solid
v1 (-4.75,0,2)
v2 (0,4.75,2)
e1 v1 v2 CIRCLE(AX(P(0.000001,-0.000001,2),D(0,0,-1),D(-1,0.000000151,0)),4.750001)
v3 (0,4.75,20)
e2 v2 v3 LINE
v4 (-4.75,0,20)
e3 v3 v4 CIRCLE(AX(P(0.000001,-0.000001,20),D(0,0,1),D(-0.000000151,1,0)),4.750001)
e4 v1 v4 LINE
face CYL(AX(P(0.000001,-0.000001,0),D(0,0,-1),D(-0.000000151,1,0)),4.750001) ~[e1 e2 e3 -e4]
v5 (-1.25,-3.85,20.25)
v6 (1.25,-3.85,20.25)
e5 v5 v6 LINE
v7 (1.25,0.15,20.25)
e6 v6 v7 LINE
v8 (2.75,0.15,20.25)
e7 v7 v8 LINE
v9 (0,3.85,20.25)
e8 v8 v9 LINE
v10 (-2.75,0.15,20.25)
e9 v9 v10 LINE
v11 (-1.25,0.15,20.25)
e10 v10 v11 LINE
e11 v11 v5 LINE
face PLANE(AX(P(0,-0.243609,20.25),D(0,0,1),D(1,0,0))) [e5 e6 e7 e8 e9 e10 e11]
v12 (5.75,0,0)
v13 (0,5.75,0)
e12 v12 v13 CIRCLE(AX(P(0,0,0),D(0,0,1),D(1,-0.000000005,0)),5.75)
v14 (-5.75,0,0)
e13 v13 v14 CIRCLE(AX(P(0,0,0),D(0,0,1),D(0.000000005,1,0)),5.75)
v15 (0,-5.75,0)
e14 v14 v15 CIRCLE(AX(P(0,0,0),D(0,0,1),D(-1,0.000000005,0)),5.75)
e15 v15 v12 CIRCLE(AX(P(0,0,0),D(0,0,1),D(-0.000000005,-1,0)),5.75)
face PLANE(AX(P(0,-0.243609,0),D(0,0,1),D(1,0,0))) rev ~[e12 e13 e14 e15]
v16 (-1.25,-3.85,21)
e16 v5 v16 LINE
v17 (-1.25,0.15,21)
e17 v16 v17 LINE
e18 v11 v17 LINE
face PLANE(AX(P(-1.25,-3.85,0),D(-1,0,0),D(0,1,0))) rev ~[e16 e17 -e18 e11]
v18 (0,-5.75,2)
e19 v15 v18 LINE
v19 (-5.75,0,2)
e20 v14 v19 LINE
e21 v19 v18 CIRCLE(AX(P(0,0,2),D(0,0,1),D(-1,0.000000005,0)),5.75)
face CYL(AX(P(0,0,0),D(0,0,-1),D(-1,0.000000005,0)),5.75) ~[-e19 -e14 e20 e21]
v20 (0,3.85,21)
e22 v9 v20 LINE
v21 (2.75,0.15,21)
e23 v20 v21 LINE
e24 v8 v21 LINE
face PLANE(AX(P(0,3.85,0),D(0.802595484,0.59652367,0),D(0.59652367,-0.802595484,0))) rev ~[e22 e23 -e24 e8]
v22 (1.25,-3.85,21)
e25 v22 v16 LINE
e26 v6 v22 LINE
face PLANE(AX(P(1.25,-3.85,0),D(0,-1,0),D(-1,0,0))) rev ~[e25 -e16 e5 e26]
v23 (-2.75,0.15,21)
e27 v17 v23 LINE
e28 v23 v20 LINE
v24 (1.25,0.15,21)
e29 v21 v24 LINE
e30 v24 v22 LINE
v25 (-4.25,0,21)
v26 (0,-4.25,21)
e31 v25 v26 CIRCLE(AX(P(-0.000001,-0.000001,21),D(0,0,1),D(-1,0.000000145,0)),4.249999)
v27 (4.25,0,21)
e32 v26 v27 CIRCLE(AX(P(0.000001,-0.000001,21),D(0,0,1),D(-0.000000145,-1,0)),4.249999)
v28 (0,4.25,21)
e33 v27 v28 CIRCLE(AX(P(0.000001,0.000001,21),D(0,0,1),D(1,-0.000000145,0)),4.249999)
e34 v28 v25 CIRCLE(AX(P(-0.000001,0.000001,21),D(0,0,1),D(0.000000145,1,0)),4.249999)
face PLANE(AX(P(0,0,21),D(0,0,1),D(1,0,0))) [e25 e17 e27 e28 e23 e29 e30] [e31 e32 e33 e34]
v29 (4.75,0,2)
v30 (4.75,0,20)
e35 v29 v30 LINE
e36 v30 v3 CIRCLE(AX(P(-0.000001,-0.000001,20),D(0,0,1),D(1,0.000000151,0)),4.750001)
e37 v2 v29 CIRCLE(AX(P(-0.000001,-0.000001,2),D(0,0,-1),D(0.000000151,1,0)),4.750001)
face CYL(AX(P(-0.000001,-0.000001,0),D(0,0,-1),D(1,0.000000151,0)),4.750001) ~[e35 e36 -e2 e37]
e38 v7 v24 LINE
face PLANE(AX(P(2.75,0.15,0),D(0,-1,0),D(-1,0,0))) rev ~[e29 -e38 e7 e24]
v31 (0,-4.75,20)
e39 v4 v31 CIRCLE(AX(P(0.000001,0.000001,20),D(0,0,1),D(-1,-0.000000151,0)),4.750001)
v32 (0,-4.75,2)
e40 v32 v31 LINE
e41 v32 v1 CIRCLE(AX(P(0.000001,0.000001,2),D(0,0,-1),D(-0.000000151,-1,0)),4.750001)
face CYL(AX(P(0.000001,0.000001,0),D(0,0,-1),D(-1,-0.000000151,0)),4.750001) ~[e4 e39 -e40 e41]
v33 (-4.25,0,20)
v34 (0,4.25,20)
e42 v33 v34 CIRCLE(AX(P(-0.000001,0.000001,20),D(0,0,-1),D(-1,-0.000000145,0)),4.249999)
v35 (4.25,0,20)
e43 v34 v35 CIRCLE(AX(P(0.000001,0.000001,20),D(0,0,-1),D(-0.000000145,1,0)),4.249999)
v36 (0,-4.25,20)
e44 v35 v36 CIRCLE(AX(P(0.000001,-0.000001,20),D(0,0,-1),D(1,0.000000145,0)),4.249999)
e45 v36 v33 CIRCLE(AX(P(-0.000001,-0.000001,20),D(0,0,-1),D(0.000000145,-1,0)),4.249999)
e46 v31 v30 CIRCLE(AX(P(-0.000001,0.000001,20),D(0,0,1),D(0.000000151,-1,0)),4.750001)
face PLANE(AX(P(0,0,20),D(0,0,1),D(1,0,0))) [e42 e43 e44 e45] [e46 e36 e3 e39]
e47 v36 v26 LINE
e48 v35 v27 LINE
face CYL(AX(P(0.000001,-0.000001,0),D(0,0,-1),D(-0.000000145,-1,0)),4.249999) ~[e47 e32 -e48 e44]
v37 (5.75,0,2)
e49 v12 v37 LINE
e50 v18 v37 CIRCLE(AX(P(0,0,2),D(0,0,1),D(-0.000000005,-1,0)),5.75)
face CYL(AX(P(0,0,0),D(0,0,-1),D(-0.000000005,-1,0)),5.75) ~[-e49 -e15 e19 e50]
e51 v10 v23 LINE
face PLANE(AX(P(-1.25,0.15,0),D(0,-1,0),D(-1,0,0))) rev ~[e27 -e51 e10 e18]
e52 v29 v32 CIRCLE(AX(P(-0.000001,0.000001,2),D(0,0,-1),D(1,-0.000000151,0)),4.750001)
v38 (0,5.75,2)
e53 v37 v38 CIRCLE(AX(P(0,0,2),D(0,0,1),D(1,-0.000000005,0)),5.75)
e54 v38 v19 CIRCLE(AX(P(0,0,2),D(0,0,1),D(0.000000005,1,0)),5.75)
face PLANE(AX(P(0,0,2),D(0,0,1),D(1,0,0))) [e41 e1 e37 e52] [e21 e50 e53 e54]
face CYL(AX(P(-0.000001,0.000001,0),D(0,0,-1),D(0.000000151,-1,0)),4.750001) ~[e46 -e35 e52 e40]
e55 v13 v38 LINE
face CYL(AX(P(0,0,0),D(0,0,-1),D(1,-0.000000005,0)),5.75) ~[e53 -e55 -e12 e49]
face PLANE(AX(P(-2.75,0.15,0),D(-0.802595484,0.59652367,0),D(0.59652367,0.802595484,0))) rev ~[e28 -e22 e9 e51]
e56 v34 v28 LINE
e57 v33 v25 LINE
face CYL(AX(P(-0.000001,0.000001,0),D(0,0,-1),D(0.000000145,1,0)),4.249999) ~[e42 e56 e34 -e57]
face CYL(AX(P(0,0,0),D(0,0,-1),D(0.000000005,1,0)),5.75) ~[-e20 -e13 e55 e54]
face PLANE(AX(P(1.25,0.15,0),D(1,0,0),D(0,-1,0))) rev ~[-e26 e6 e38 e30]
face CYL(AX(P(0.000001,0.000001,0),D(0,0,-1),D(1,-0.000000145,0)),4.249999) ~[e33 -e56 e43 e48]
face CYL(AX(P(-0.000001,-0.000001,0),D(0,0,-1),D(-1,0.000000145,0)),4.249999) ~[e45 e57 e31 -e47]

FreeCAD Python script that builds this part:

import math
import FreeCAD as App
import Part
import Sketcher

V = App.Vector
Q = App.Units.Quantity

doc = App.newDocument("Part")
body = doc.addObject("PartDesign::Body", "Body")

# Sketch on XY plane
sketch1 = body.newObject("Sketcher::SketchObject", "Sketch")
sketch1.AttachmentSupport = (doc.getObject("XY_Plane"), [""])
sketch1.MapMode = "FlatFace"
sketch1.addGeometry([
    Part.ArcOfCircle(Part.Circle(V(0, 0, 0), V(0, 0, 1), 4.2), math.radians(90), math.radians(180)),  # 0
    Part.ArcOfCircle(Part.Circle(V(0, 0, 0), V(0, 0, 1), 4.2), math.radians(180), math.radians(270)),  # 1
    Part.ArcOfCircle(Part.Circle(V(0, 0, 0), V(0, 0, 1), 4.2), math.radians(-90), math.radians(0)),  # 2
    Part.ArcOfCircle(Part.Circle(V(0, 0, 0), V(0, 0, 1), 4.2), math.radians(0), math.radians(90)),  # 3
    Part.LineSegment(V(1.2, 0.1, 0), V(1.2, -3.9, 0)),  # 4
    Part.LineSegment(V(1.2, -3.9, 0), V(-1.2, -3.9, 0)),  # 5
    Part.LineSegment(V(-1.2, -3.9, 0), V(-1.2, 0.1, 0)),  # 6
    Part.LineSegment(V(-1.2, 0.1, 0), V(-2.8, 0.1, 0)),  # 7
    Part.LineSegment(V(-2.8, 0.1, 0), V(0, 3.9, 0)),  # 8
    Part.LineSegment(V(0, 3.9, 0), V(2.8, 0.1, 0)),  # 9
    Part.LineSegment(V(2.8, 0.1, 0), V(1.2, 0.1, 0)),  # 10
], False)
sketch1.addConstraint([
    Sketcher.Constraint("Tangent", 0, 2, 1, 1),
    Sketcher.Constraint("Tangent", 1, 2, 2, 1),
    Sketcher.Constraint("Tangent", 2, 2, 3, 1),
    Sketcher.Constraint("Tangent", 3, 2, 0, 1),
    Sketcher.Constraint("Coincident", 4, 2, 5, 1),
    Sketcher.Constraint("Coincident", 5, 2, 6, 1),
    Sketcher.Constraint("Coincident", 6, 2, 7, 1),
    Sketcher.Constraint("Coincident", 7, 2, 8, 1),
    Sketcher.Constraint("Coincident", 8, 2, 9, 1),
    Sketcher.Constraint("Coincident", 9, 2, 10, 1),
    Sketcher.Constraint("Coincident", 10, 2, 4, 1),
    Sketcher.Constraint("Vertical", 4),
    Sketcher.Constraint("Horizontal", 5),
    Sketcher.Constraint("Vertical", 6),
    Sketcher.Constraint("Horizontal", 7),
    Sketcher.Constraint("Horizontal", 10),
    Sketcher.Constraint("Coincident", 0, 3, -1, 1),
    Sketcher.Constraint("Equal", 0, 1),
    Sketcher.Constraint("Symmetric", 7, 2, 9, 2, -2),
    Sketcher.Constraint("PointOnObject", 0, 2, -1),
    Sketcher.Constraint("PointOnObject", 1, 2, -2),
    Sketcher.Constraint("PointOnObject", 2, 2, -1),
    Sketcher.Constraint("PointOnObject", 3, 2, -2),
    Sketcher.Constraint("PointOnObject", 8, 2, -2),
    Sketcher.Constraint("Equal", 7, 10),
    Sketcher.Constraint("DistanceY", 4, 2, 4, 1, Q("4 mm")),
    Sketcher.Constraint("Radius", 0, Q("4.249999 mm")),
    Sketcher.Constraint("DistanceX", 5, 2, 5, 1, Q("2.5 mm")),
    Sketcher.Constraint("DistanceX", 7, 2, 7, 1, Q("1.5 mm")),
    Sketcher.Constraint("DistanceY", 1, 2, 4, 2, Q("0.4 mm")),
    Sketcher.Constraint("DistanceY", 8, 2, 3, 2, Q("0.4 mm")),
])
pad1 = body.newObject("PartDesign::Pad", "Pad")
pad1.Profile = sketch1
pad1.Length = 21

# Sketch on XY plane
sketch2 = body.newObject("Sketcher::SketchObject", "Sketch001")
sketch2.AttachmentSupport = (doc.getObject("XY_Plane"), [""])
sketch2.MapMode = "FlatFace"
sketch2.addGeometry([
    Part.ArcOfCircle(Part.Circle(V(0, 0, 0), V(0, 0, 1), 4.8), math.radians(0), math.radians(90)),  # 0
    Part.ArcOfCircle(Part.Circle(V(0, 0, 0), V(0, 0, 1), 4.8), math.radians(90), math.radians(180)),  # 1
    Part.ArcOfCircle(Part.Circle(V(0, 0, 0), V(0, 0, 1), 4.8), math.radians(-180), math.radians(-90)),  # 2
    Part.ArcOfCircle(Part.Circle(V(0, 0, 0), V(0, 0, 1), 4.8), math.radians(-90), math.radians(0)),  # 3
    Part.ArcOfCircle(Part.Circle(V(0, 0, 0), V(0, 0, 1), 4.2), math.radians(-90), math.radians(0)),  # 4
    Part.ArcOfCircle(Part.Circle(V(0, 0, 0), V(0, 0, 1), 4.2), math.radians(180), math.radians(270)),  # 5
    Part.ArcOfCircle(Part.Circle(V(0, 0, 0), V(0, 0, 1), 4.2), math.radians(90), math.radians(180)),  # 6
    Part.ArcOfCircle(Part.Circle(V(0, 0, 0), V(0, 0, 1), 4.2), math.radians(0), math.radians(90)),  # 7
], False)
sketch2.addConstraint([
    Sketcher.Constraint("Tangent", 0, 2, 1, 1),
    Sketcher.Constraint("Tangent", 1, 2, 2, 1),
    Sketcher.Constraint("Tangent", 2, 2, 3, 1),
    Sketcher.Constraint("Tangent", 3, 2, 0, 1),
    Sketcher.Constraint("Tangent", 4, 1, 5, 2),
    Sketcher.Constraint("Tangent", 5, 1, 6, 2),
    Sketcher.Constraint("Tangent", 6, 1, 7, 2),
    Sketcher.Constraint("Tangent", 7, 1, 4, 2),
    Sketcher.Constraint("Coincident", 0, 3, -1, 1),
    Sketcher.Constraint("Coincident", 4, 3, -1, 1),
    Sketcher.Constraint("Equal", 0, 1),
    Sketcher.Constraint("Equal", 4, 5),
    Sketcher.Constraint("PointOnObject", 0, 2, -2),
    Sketcher.Constraint("PointOnObject", 1, 2, -1),
    Sketcher.Constraint("PointOnObject", 2, 2, -2),
    Sketcher.Constraint("PointOnObject", 3, 2, -1),
    Sketcher.Constraint("PointOnObject", 4, 1, -2),
    Sketcher.Constraint("PointOnObject", 5, 1, -1),
    Sketcher.Constraint("PointOnObject", 6, 1, -2),
    Sketcher.Constraint("PointOnObject", 7, 1, -1),
    Sketcher.Constraint("Radius", 0, Q("4.750001 mm")),
    Sketcher.Constraint("Radius", 4, Q("4.249999 mm")),
])
pad2 = body.newObject("PartDesign::Pad", "Pad001")
pad2.Profile = sketch2
pad2.Length = 20

# Sketch on XY plane
sketch3 = body.newObject("Sketcher::SketchObject", "Sketch002")
sketch3.AttachmentSupport = (doc.getObject("XY_Plane"), [""])
sketch3.MapMode = "FlatFace"
sketch3.addGeometry([
    Part.ArcOfCircle(Part.Circle(V(0, 0, 0), V(0, 0, 1), 5.7), math.radians(180), math.radians(270)),  # 0
    Part.ArcOfCircle(Part.Circle(V(0, 0, 0), V(0, 0, 1), 5.7), math.radians(-90), math.radians(0)),  # 1
    Part.ArcOfCircle(Part.Circle(V(0, 0, 0), V(0, 0, 1), 5.7), math.radians(0), math.radians(90)),  # 2
    Part.ArcOfCircle(Part.Circle(V(0, 0, 0), V(0, 0, 1), 5.7), math.radians(90), math.radians(180)),  # 3
    Part.ArcOfCircle(Part.Circle(V(0, 0, 0), V(0, 0, 1), 4.8), math.radians(-180), math.radians(-90)),  # 4
    Part.ArcOfCircle(Part.Circle(V(0, 0, 0), V(0, 0, 1), 4.8), math.radians(90), math.radians(180)),  # 5
    Part.ArcOfCircle(Part.Circle(V(0, 0, 0), V(0, 0, 1), 4.8), math.radians(0), math.radians(90)),  # 6
    Part.ArcOfCircle(Part.Circle(V(0, 0, 0), V(0, 0, 1), 4.8), math.radians(-90), math.radians(0)),  # 7
], False)
sketch3.addConstraint([
    Sketcher.Constraint("Tangent", 0, 2, 1, 1),
    Sketcher.Constraint("Tangent", 1, 2, 2, 1),
    Sketcher.Constraint("Tangent", 2, 2, 3, 1),
    Sketcher.Constraint("Tangent", 3, 2, 0, 1),
    Sketcher.Constraint("Tangent", 4, 1, 5, 2),
    Sketcher.Constraint("Tangent", 5, 1, 6, 2),
    Sketcher.Constraint("Tangent", 6, 1, 7, 2),
    Sketcher.Constraint("Tangent", 7, 1, 4, 2),
    Sketcher.Constraint("Coincident", 0, 3, -1, 1),
    Sketcher.Constraint("Coincident", 4, 3, -1, 1),
    Sketcher.Constraint("Equal", 0, 1),
    Sketcher.Constraint("Equal", 4, 5),
    Sketcher.Constraint("PointOnObject", 0, 2, -2),
    Sketcher.Constraint("PointOnObject", 1, 2, -1),
    Sketcher.Constraint("PointOnObject", 2, 2, -2),
    Sketcher.Constraint("PointOnObject", 3, 2, -1),
    Sketcher.Constraint("PointOnObject", 4, 1, -1),
    Sketcher.Constraint("PointOnObject", 5, 1, -2),
    Sketcher.Constraint("PointOnObject", 6, 1, -1),
    Sketcher.Constraint("PointOnObject", 7, 1, -2),
    Sketcher.Constraint("Radius", 0, Q("5.75 mm")),
    Sketcher.Constraint("Radius", 4, Q("4.750001 mm")),
])
pad3 = body.newObject("PartDesign::Pad", "Pad002")
pad3.Profile = sketch3
pad3.Length = 2

# Sketch on XY plane
sketch4 = body.newObject("Sketcher::SketchObject", "Sketch003")
sketch4.AttachmentSupport = (doc.getObject("XY_Plane"), [""])
sketch4.MapMode = "FlatFace"
sketch4.addGeometry([
    Part.LineSegment(V(-1.2, 0.1, 0), V(-1.2, -3.9, 0)),  # 0
    Part.LineSegment(V(-1.2, -3.9, 0), V(1.2, -3.9, 0)),  # 1
    Part.LineSegment(V(1.2, -3.9, 0), V(1.2, 0.1, 0)),  # 2
    Part.LineSegment(V(1.2, 0.1, 0), V(2.8, 0.1, 0)),  # 3
    Part.LineSegment(V(2.8, 0.1, 0), V(0, 3.9, 0)),  # 4
    Part.LineSegment(V(0, 3.9, 0), V(-2.8, 0.1, 0)),  # 5
    Part.LineSegment(V(-2.8, 0.1, 0), V(-1.2, 0.1, 0)),  # 6
], False)
sketch4.addConstraint([
    Sketcher.Constraint("Coincident", 0, 2, 1, 1),
    Sketcher.Constraint("Coincident", 1, 2, 2, 1),
    Sketcher.Constraint("Coincident", 2, 2, 3, 1),
    Sketcher.Constraint("Coincident", 3, 2, 4, 1),
    Sketcher.Constraint("Coincident", 4, 2, 5, 1),
    Sketcher.Constraint("Coincident", 5, 2, 6, 1),
    Sketcher.Constraint("Coincident", 6, 2, 0, 1),
    Sketcher.Constraint("Vertical", 0),
    Sketcher.Constraint("Horizontal", 1),
    Sketcher.Constraint("Vertical", 2),
    Sketcher.Constraint("Horizontal", 3),
    Sketcher.Constraint("Horizontal", 6),
    Sketcher.Constraint("Symmetric", 3, 2, 5, 2, -2),
    Sketcher.Constraint("PointOnObject", 4, 2, -2),
    Sketcher.Constraint("Equal", 3, 6),
    Sketcher.Constraint("DistanceY", 0, 2, 0, 1, Q("4 mm")),
    Sketcher.Constraint("DistanceX", 1, 1, 1, 2, Q("2.5 mm")),
    Sketcher.Constraint("DistanceX", 3, 1, 3, 2, Q("1.5 mm")),
    Sketcher.Constraint("DistanceY", 2, 2, 4, 2, Q("3.7 mm")),
    Sketcher.Constraint("DistanceY", 0, 2, -1, 1, Q("3.85 mm")),
])
pad4 = body.newObject("PartDesign::Pad", "Pad003")
pad4.Profile = sketch4
pad4.Length = 20.25

doc.recompute()
